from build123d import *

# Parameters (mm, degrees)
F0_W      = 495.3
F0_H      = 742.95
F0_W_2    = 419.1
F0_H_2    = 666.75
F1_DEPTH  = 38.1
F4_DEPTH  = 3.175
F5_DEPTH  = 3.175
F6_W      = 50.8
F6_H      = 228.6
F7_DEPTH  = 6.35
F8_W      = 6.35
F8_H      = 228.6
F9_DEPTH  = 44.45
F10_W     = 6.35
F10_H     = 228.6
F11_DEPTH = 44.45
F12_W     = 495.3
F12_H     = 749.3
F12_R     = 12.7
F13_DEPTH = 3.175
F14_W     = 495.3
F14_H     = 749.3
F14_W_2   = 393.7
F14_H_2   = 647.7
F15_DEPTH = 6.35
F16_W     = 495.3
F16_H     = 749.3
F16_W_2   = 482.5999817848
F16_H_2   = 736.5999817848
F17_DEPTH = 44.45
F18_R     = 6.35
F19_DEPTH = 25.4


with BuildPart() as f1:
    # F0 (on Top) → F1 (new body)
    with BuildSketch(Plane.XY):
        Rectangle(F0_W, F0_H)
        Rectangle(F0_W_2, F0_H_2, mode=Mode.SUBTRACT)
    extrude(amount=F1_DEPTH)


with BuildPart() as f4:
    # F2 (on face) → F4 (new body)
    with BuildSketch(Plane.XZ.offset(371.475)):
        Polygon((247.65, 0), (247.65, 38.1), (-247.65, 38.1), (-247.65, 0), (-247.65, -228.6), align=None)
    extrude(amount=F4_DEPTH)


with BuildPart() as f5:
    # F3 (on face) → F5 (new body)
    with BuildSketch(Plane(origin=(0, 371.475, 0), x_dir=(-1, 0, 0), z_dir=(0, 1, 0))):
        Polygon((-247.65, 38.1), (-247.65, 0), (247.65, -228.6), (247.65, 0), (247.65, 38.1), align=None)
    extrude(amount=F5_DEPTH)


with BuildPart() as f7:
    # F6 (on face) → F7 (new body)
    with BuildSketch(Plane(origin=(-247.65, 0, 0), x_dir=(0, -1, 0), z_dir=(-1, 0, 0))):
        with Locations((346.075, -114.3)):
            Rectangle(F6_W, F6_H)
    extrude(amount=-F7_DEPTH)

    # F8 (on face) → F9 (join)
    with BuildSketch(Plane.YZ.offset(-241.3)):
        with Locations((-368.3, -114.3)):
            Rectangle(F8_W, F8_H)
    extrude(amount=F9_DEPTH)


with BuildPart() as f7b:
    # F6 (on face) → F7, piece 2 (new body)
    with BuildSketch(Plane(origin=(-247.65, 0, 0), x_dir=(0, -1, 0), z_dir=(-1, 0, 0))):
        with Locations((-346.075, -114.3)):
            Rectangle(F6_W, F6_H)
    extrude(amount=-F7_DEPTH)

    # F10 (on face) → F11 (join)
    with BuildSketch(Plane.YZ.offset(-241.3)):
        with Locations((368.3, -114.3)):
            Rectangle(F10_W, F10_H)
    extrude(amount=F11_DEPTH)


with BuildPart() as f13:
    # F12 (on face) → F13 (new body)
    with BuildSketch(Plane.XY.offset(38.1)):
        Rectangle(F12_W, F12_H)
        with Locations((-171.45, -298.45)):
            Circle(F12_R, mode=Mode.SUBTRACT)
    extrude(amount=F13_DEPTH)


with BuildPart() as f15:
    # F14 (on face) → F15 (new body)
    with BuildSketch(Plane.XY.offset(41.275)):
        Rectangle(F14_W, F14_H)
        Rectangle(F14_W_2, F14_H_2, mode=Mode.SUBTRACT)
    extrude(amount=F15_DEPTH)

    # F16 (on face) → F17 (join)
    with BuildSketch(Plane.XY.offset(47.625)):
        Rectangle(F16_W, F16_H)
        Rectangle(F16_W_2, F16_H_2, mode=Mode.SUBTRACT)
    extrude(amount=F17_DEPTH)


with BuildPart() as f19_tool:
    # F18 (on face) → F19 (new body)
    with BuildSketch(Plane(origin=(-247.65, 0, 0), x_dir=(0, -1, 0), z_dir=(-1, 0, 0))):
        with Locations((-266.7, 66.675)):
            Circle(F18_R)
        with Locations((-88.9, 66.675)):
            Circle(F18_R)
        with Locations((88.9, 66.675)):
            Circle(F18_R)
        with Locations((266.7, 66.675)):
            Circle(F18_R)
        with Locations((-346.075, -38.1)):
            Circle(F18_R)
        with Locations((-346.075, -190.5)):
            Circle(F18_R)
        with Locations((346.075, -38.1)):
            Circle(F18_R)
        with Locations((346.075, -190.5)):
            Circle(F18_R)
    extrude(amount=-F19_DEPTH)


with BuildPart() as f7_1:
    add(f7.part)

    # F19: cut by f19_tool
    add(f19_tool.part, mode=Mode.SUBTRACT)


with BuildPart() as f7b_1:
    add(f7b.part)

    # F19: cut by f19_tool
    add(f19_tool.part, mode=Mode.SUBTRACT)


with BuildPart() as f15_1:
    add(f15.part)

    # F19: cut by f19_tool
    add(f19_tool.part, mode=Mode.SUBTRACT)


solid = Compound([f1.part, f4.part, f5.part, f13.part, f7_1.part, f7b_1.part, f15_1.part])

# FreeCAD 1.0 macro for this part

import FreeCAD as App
import Part
import Sketcher
from FreeCAD import Vector
Q = App.Units.Quantity


def add_polygon(sketch, points):
    """Adds a closed chain of lines whose ends are joined by coincident constraints."""
    first, n = sketch.GeometryCount, len(points)
    for a, b in zip(points, points[1:] + points[:1]):
        sketch.addGeometry(Part.LineSegment(App.Vector(*a, 0), App.Vector(*b, 0)), False)
    for i in range(n):
        sketch.addConstraint(Sketcher.Constraint("Coincident", first + i, 2, first + (i + 1) % n, 1))

doc = App.newDocument("Part")
params = doc.addObject("Spreadsheet::Sheet", "Params")
for row, (alias, value) in enumerate([
    ("sketch1_width", "19.5 in"),
    ("sketch1_width2", "16.5 in"),
    ("sketch1_height", "29.25 in"),
    ("sketch1_height2", "26.25 in"),
    ("pad1_length", "1.5 in"),
    ("sketch2_width", "19.5 in"),
    ("sketch2_height", "1.5 in"),
    ("sketch2_height2", "10.5 in"),
    ("pad2_length", "0.125 in"),
    ("sketch3_width", "19.5 in"),
    ("sketch3_height", "1.5 in"),
    ("sketch3_height2", "10.5 in"),
    ("pad3_length", "0.125 in"),
    ("sketch4_width", "2 in"),
    ("sketch4_height", "9 in"),
    ("pad4_length", "0.25 in"),
    ("sketch5_height", "9 in"),
    ("sketch5_width", "0.25 in"),
    ("pad5_length", "1.75 in"),
    ("sketch6_width", "2 in"),
    ("sketch6_height", "9 in"),
    ("pad6_length", "0.25 in"),
    ("sketch7_height", "9 in"),
    ("sketch7_width", "0.25 in"),
    ("pad7_length", "1.75 in"),
    ("sketch8_diameter", "1 in"),
    ("sketch8_width", "19.5 in"),
    ("sketch8_height", "29.5 in"),
    ("pad8_length", "0.125 in"),
    ("sketch9_width", "19.5 in"),
    ("sketch9_width2", "15.5 in"),
    ("sketch9_height", "29.5 in"),
    ("sketch9_height2", "25.5 in"),
    ("pad9_length", "0.25 in"),
    ("sketch10_width", "19.5 in"),
    ("sketch10_height", "29.5 in"),
    ("pad10_length", "1.75 in"),
    ("sketch11_diameter", "0.5 in"),
    ("pad11_length", "1 in"),
], start=1):
    params.set(f"A{row}", alias)
    params.set(f"B{row}", "=" + value)
    params.setAlias(f"B{row}", alias)

body = doc.addObject("PartDesign::Body", "Body")

sketch1 = body.newObject("Sketcher::SketchObject", "Sketch")
sketch1.AttachmentSupport = (doc.getObject("XY_Plane"), [""])
sketch1.MapMode = "FlatFace"
add_polygon(sketch1, [(-248, 371), (-248, -371), (248, -371), (248, 371)])
add_polygon(sketch1, [(210, -333), (-210, -333), (-210, 333), (210, 333)])
sketch1.addConstraint([
    Sketcher.Constraint("Vertical", 0),
    Sketcher.Constraint("Horizontal", 1),
    Sketcher.Constraint("Vertical", 2),
    Sketcher.Constraint("Horizontal", 3),
    Sketcher.Constraint("Horizontal", 4),
    Sketcher.Constraint("Vertical", 5),
    Sketcher.Constraint("Horizontal", 6),
    Sketcher.Constraint("Vertical", 7),
    Sketcher.Constraint("Symmetric", 0, 2, 2, 2, -1, 1),
    Sketcher.Constraint("Symmetric", 4, 2, 6, 2, -1, 1),
    Sketcher.Constraint("DistanceX", 1, 1, 1, 2, Q("19.5 in")),
    Sketcher.Constraint("DistanceX", 4, 2, 4, 1, Q("16.5 in")),
    Sketcher.Constraint("DistanceY", 0, 2, 0, 1, Q("29.25 in")),
    Sketcher.Constraint("DistanceY", 5, 1, 5, 2, Q("26.25 in")),
])
sketch1.setExpression("Constraints[18]", "Params.sketch1_width")
sketch1.setExpression("Constraints[19]", "Params.sketch1_width2")
sketch1.setExpression("Constraints[20]", "Params.sketch1_height")
sketch1.setExpression("Constraints[21]", "Params.sketch1_height2")
pad1 = body.newObject("PartDesign::Pad", "Pad")
pad1.Profile = sketch1
pad1.setExpression("Length", "Params.pad1_length")
body2 = doc.addObject("PartDesign::Body", "Body001")

sketch2 = body2.newObject("Sketcher::SketchObject", "Sketch001")
sketch2.AttachmentSupport = (doc.getObject("XZ_Plane001"), [""])
sketch2.MapMode = "FlatFace"
sketch2.AttachmentOffset = App.Placement(Vector(0, 0, 14.625 * 25.4), App.Rotation())
add_polygon(sketch2, [(248, 0), (248, 38), (-248, 38), (-248, -229)])
sketch2.addConstraint([
    Sketcher.Constraint("Vertical", 0),
    Sketcher.Constraint("Horizontal", 1),
    Sketcher.Constraint("Vertical", 2),
    Sketcher.Constraint("PointOnObject", 3, 2, -1),
    Sketcher.Constraint("DistanceX", 1, 2, 1, 1, Q("19.5 in")),
    Sketcher.Constraint("DistanceY", 0, 1, 0, 2, Q("1.5 in")),
    Sketcher.Constraint("DistanceY", 2, 2, 2, 1, Q("10.5 in")),
    Sketcher.Constraint("DistanceX", -1, 1, 0, 2, Q("9.75 in")),
])
sketch2.setExpression("Constraints[8]", "Params.sketch2_width")
sketch2.setExpression("Constraints[9]", "Params.sketch2_height")
sketch2.setExpression("Constraints[10]", "Params.sketch2_height2")
pad2 = body2.newObject("PartDesign::Pad", "Pad001")
pad2.Profile = sketch2
pad2.setExpression("Length", "Params.pad2_length")
body3 = doc.addObject("PartDesign::Body", "Body002")

sketch3 = body3.newObject("Sketcher::SketchObject", "Sketch002")
sketch3.AttachmentSupport = (doc.getObject("XZ_Plane002"), [""])
sketch3.MapMode = "FlatFace"
sketch3.AttachmentOffset = App.Placement(Vector(0, 0, -14.625 * 25.4), App.Rotation())
add_polygon(sketch3, [(248, 38), (248, 0), (-248, -229), (-248, 38)])
sketch3.addConstraint([
    Sketcher.Constraint("Vertical", 0),
    Sketcher.Constraint("Vertical", 2),
    Sketcher.Constraint("Horizontal", 3),
    Sketcher.Constraint("PointOnObject", 0, 2, -1),
    Sketcher.Constraint("DistanceX", 3, 1, 3, 2, Q("19.5 in")),
    Sketcher.Constraint("DistanceY", 0, 2, 0, 1, Q("1.5 in")),
    Sketcher.Constraint("DistanceY", 2, 1, 2, 2, Q("10.5 in")),
    Sketcher.Constraint("DistanceX", -1, 1, 0, 2, Q("9.75 in")),
])
sketch3.setExpression("Constraints[8]", "Params.sketch3_width")
sketch3.setExpression("Constraints[9]", "Params.sketch3_height")
sketch3.setExpression("Constraints[10]", "Params.sketch3_height2")
pad3 = body3.newObject("PartDesign::Pad", "Pad002")
pad3.Profile = sketch3
pad3.setExpression("Length", "Params.pad3_length")
pad3.Reversed = True
body4 = doc.addObject("PartDesign::Body", "Body003")

sketch4 = body4.newObject("Sketcher::SketchObject", "Sketch003")
sketch4.AttachmentSupport = (doc.getObject("YZ_Plane003"), [""])
sketch4.MapMode = "FlatFace"
sketch4.AttachmentOffset = App.Placement(Vector(0, 0, -9.75 * 25.4), App.Rotation())
add_polygon(sketch4, [(-321, 0), (-321, -229), (-371, -229), (-371, 0)])
sketch4.addConstraint([
    Sketcher.Constraint("Vertical", 0),
    Sketcher.Constraint("Horizontal", 1),
    Sketcher.Constraint("Vertical", 2),
    Sketcher.Constraint("Horizontal", 3),
    Sketcher.Constraint("PointOnObject", 2, 2, -1),
    Sketcher.Constraint("DistanceX", 1, 2, 1, 1, Q("2 in")),
    Sketcher.Constraint("DistanceY", 0, 2, 0, 1, Q("9 in")),
    Sketcher.Constraint("DistanceX", 0, 2, -1, 1, Q("12.625 in")),
])
sketch4.setExpression("Constraints[9]", "Params.sketch4_width")
sketch4.setExpression("Constraints[10]", "Params.sketch4_height")
pad4 = body4.newObject("PartDesign::Pad", "Pad003")
pad4.Profile = sketch4
pad4.setExpression("Length", "Params.pad4_length")

sketch5 = body4.newObject("Sketcher::SketchObject", "Sketch004")
sketch5.AttachmentSupport = (doc.getObject("YZ_Plane003"), [""])
sketch5.MapMode = "FlatFace"
sketch5.AttachmentOffset = App.Placement(Vector(0, 0, -9.5 * 25.4), App.Rotation())
add_polygon(sketch5, [(-371, 0), (-371, -229), (-365, -229), (-365, 0)])
sketch5.addConstraint([
    Sketcher.Constraint("Vertical", 0),
    Sketcher.Constraint("Horizontal", 1),
    Sketcher.Constraint("Vertical", 2),
    Sketcher.Constraint("Horizontal", 3),
    Sketcher.Constraint("PointOnObject", 2, 2, -1),
    Sketcher.Constraint("DistanceY", 0, 2, 0, 1, Q("9 in")),
    Sketcher.Constraint("DistanceX", 1, 1, 1, 2, Q("0.25 in")),
    Sketcher.Constraint("DistanceX", 0, 2, -1, 1, Q("14.625 in")),
])
sketch5.setExpression("Constraints[9]", "Params.sketch5_height")
sketch5.setExpression("Constraints[10]", "Params.sketch5_width")
pad5 = body4.newObject("PartDesign::Pad", "Pad004")
pad5.Profile = sketch5
pad5.setExpression("Length", "Params.pad5_length")
body5 = doc.addObject("PartDesign::Body", "Body004")

sketch6 = body5.newObject("Sketcher::SketchObject", "Sketch005")
sketch6.AttachmentSupport = (doc.getObject("YZ_Plane004"), [""])
sketch6.MapMode = "FlatFace"
sketch6.AttachmentOffset = App.Placement(Vector(0, 0, -9.75 * 25.4), App.Rotation())
add_polygon(sketch6, [(371, 0), (371, -229), (321, -229), (321, 0)])
sketch6.addConstraint([
    Sketcher.Constraint("Vertical", 0),
    Sketcher.Constraint("Horizontal", 1),
    Sketcher.Constraint("Vertical", 2),
    Sketcher.Constraint("Horizontal", 3),
    Sketcher.Constraint("PointOnObject", 2, 2, -1),
    Sketcher.Constraint("DistanceX", 1, 2, 1, 1, Q("2 in")),
    Sketcher.Constraint("DistanceY", 0, 2, 0, 1, Q("9 in")),
    Sketcher.Constraint("DistanceX", -1, 1, 0, 2, Q("14.625 in")),
])
sketch6.setExpression("Constraints[9]", "Params.sketch6_width")
sketch6.setExpression("Constraints[10]", "Params.sketch6_height")
pad6 = body5.newObject("PartDesign::Pad", "Pad005")
pad6.Profile = sketch6
pad6.setExpression("Length", "Params.pad6_length")

sketch7 = body5.newObject("Sketcher::SketchObject", "Sketch006")
sketch7.AttachmentSupport = (doc.getObject("YZ_Plane004"), [""])
sketch7.MapMode = "FlatFace"
sketch7.AttachmentOffset = App.Placement(Vector(0, 0, -9.5 * 25.4), App.Rotation())
add_polygon(sketch7, [(365, 0), (365, -229), (371, -229), (371, 0)])
sketch7.addConstraint([
    Sketcher.Constraint("Vertical", 0),
    Sketcher.Constraint("Horizontal", 1),
    Sketcher.Constraint("Vertical", 2),
    Sketcher.Constraint("Horizontal", 3),
    Sketcher.Constraint("PointOnObject", 2, 2, -1),
    Sketcher.Constraint("DistanceY", 0, 2, 0, 1, Q("9 in")),
    Sketcher.Constraint("DistanceX", 1, 1, 1, 2, Q("0.25 in")),
    Sketcher.Constraint("DistanceX", -1, 1, 0, 2, Q("14.375 in")),
])
sketch7.setExpression("Constraints[9]", "Params.sketch7_height")
sketch7.setExpression("Constraints[10]", "Params.sketch7_width")
pad7 = body5.newObject("PartDesign::Pad", "Pad006")
pad7.Profile = sketch7
pad7.setExpression("Length", "Params.pad7_length")
body6 = doc.addObject("PartDesign::Body", "Body005")

sketch8 = body6.newObject("Sketcher::SketchObject", "Sketch007")
sketch8.AttachmentSupport = (doc.getObject("XY_Plane005"), [""])
sketch8.MapMode = "FlatFace"
sketch8.AttachmentOffset = App.Placement(Vector(0, 0, 1.5 * 25.4), App.Rotation())
add_polygon(sketch8, [(-248, 375), (-248, -375), (248, -375), (248, 375)])
sketch8.addGeometry(Part.Circle(Vector(-171, -298, 0), Vector(0, 0, 1), 13), False)
sketch8.addConstraint([
    Sketcher.Constraint("Vertical", 0),
    Sketcher.Constraint("Horizontal", 1),
    Sketcher.Constraint("Vertical", 2),
    Sketcher.Constraint("Horizontal", 3),
    Sketcher.Constraint("Symmetric", 0, 2, 2, 2, -1, 1),
    Sketcher.Constraint("Diameter", 4, Q("1 in")),
    Sketcher.Constraint("DistanceX", 1, 1, 1, 2, Q("19.5 in")),
    Sketcher.Constraint("DistanceY", 0, 2, 0, 1, Q("29.5 in")),
    Sketcher.Constraint("DistanceX", 0, 2, 4, 3, Q("3 in")),
    Sketcher.Constraint("DistanceY", 0, 2, 4, 3, Q("3 in")),
])
sketch8.setExpression("Constraints[9]", "Params.sketch8_diameter")
sketch8.setExpression("Constraints[10]", "Params.sketch8_width")
sketch8.setExpression("Constraints[11]", "Params.sketch8_height")
pad8 = body6.newObject("PartDesign::Pad", "Pad007")
pad8.Profile = sketch8
pad8.setExpression("Length", "Params.pad8_length")
body7 = doc.addObject("PartDesign::Body", "Body006")

sketch9 = body7.newObject("Sketcher::SketchObject", "Sketch008")
sketch9.AttachmentSupport = (doc.getObject("XY_Plane006"), [""])
sketch9.MapMode = "FlatFace"
sketch9.AttachmentOffset = App.Placement(Vector(0, 0, 1.625 * 25.4), App.Rotation())
add_polygon(sketch9, [(-248, 375), (-248, -375), (248, -375), (248, 375)])
add_polygon(sketch9, [(197, -324), (-197, -324), (-197, 324), (197, 324)])
sketch9.addConstraint([
    Sketcher.Constraint("Vertical", 0),
    Sketcher.Constraint("Horizontal", 1),
    Sketcher.Constraint("Vertical", 2),
    Sketcher.Constraint("Horizontal", 3),
    Sketcher.Constraint("Horizontal", 4),
    Sketcher.Constraint("Vertical", 5),
    Sketcher.Constraint("Horizontal", 6),
    Sketcher.Constraint("Vertical", 7),
    Sketcher.Constraint("Symmetric", 0, 2, 2, 2, -1, 1),
    Sketcher.Constraint("Symmetric", 4, 2, 6, 2, -1, 1),
    Sketcher.Constraint("DistanceX", 1, 1, 1, 2, Q("19.5 in")),
    Sketcher.Constraint("DistanceX", 4, 2, 4, 1, Q("15.5 in")),
    Sketcher.Constraint("DistanceY", 0, 2, 0, 1, Q("29.5 in")),
    Sketcher.Constraint("DistanceY", 5, 1, 5, 2, Q("25.5 in")),
])
sketch9.setExpression("Constraints[18]", "Params.sketch9_width")
sketch9.setExpression("Constraints[19]", "Params.sketch9_width2")
sketch9.setExpression("Constraints[20]", "Params.sketch9_height")
sketch9.setExpression("Constraints[21]", "Params.sketch9_height2")
pad9 = body7.newObject("PartDesign::Pad", "Pad008")
pad9.Profile = sketch9
pad9.setExpression("Length", "Params.pad9_length")

sketch10 = body7.newObject("Sketcher::SketchObject", "Sketch009")
sketch10.AttachmentSupport = (doc.getObject("XY_Plane006"), [""])
sketch10.MapMode = "FlatFace"
sketch10.AttachmentOffset = App.Placement(Vector(0, 0, 1.875 * 25.4), App.Rotation())
add_polygon(sketch10, [(-248, 375), (-248, -375), (248, -375), (248, 375)])
add_polygon(sketch10, [(241, -368), (-241, -368), (-241, 368), (241, 368)])
sketch10.addConstraint([
    Sketcher.Constraint("Vertical", 0),
    Sketcher.Constraint("Horizontal", 1),
    Sketcher.Constraint("Vertical", 2),
    Sketcher.Constraint("Horizontal", 3),
    Sketcher.Constraint("Horizontal", 4),
    Sketcher.Constraint("Vertical", 5),
    Sketcher.Constraint("Horizontal", 6),
    Sketcher.Constraint("Vertical", 7),
    Sketcher.Constraint("Symmetric", 0, 2, 2, 2, -1, 1),
    Sketcher.Constraint("Symmetric", 4, 2, 6, 2, -1, 1),
    Sketcher.Constraint("DistanceX", 1, 1, 1, 2, Q("19.5 in")),
    Sketcher.Constraint("DistanceY", 0, 2, 0, 1, Q("29.5 in")),
    Sketcher.Constraint("DistanceX", 4, 2, 4, 1, Q("482.599982 mm")),
    Sketcher.Constraint("DistanceY", 5, 1, 5, 2, Q("736.599982 mm")),
])
sketch10.setExpression("Constraints[18]", "Params.sketch10_width")
sketch10.setExpression("Constraints[19]", "Params.sketch10_height")
pad10 = body7.newObject("PartDesign::Pad", "Pad009")
pad10.Profile = sketch10
pad10.setExpression("Length", "Params.pad10_length")
body8 = doc.addObject("PartDesign::Body", "Body007")
body8.AllowCompound = True

sketch11 = body8.newObject("Sketcher::SketchObject", "Sketch010")
sketch11.AttachmentSupport = (doc.getObject("YZ_Plane007"), [""])
sketch11.MapMode = "FlatFace"
sketch11.AttachmentOffset = App.Placement(Vector(0, 0, -9.75 * 25.4), App.Rotation())
sketch11.addGeometry([
    Part.Circle(Vector(267, 67, 0), Vector(0, 0, 1), 6),
    Part.Circle(Vector(89, 67, 0), Vector(0, 0, 1), 6),
    Part.Circle(Vector(-89, 67, 0), Vector(0, 0, 1), 6),
    Part.Circle(Vector(-267, 67, 0), Vector(0, 0, 1), 6),
    Part.Circle(Vector(346, -38, 0), Vector(0, 0, 1), 6),
    Part.Circle(Vector(346, -190, 0), Vector(0, 0, 1), 6),
    Part.Circle(Vector(-346, -38, 0), Vector(0, 0, 1), 6),
    Part.Circle(Vector(-346, -190, 0), Vector(0, 0, 1), 6),
], False)
sketch11.addConstraint([
    Sketcher.Constraint("Equal", 0, 1),
    Sketcher.Constraint("Equal", 1, 2),
    Sketcher.Constraint("Equal", 2, 3),
    Sketcher.Constraint("Equal", 3, 4),
    Sketcher.Constraint("Equal", 4, 5),
    Sketcher.Constraint("Equal", 5, 6),
    Sketcher.Constraint("Equal", 6, 7),
    Sketcher.Constraint("Symmetric", 1, 3, 2, 3, -2),
    Sketcher.Constraint("Symmetric", 0, 3, 3, 3, -2),
    Sketcher.Constraint("Symmetric", 4, 3, 6, 3, -2),
    Sketcher.Constraint("Symmetric", 5, 3, 7, 3, -2),
    Sketcher.Constraint("Horizontal", 0, 3, 1, 3),
    Sketcher.Constraint("Vertical", 4, 3, 5, 3),
    Sketcher.Constraint("Diameter", 0, Q("0.5 in")),
    Sketcher.Constraint("DistanceX", 1, 3, 0, 3, Q("7 in")),
    Sketcher.Constraint("DistanceX", 2, 3, 1, 3, Q("7 in")),
    Sketcher.Constraint("DistanceY", 5, 3, 4, 3, Q("6 in")),
    Sketcher.Constraint("DistanceY", 4, 3, -1, 1, Q("1.5 in")),
    Sketcher.Constraint("DistanceX", 6, 3, 4, 3, Q("27.25 in")),
    Sketcher.Constraint("DistanceY", -1, 1, 0, 3, Q("2.625 in")),
])
sketch11.setExpression("Constraints[13]", "Params.sketch11_diameter")
pad11 = body8.newObject("PartDesign::Pad", "Pad010")
pad11.Profile = sketch11
pad11.setExpression("Length", "Params.pad11_length")
doc.recompute()

body9 = doc.addObject("PartDesign::Body", "Body008")
body9.BaseFeature = body8
boolean = body4.newObject("PartDesign::Boolean", "Boolean")
boolean.Type = "Cut"
boolean.addObjects([body9])
doc.recompute()

body10 = doc.addObject("PartDesign::Body", "Body009")
body10.BaseFeature = body8
boolean2 = body5.newObject("PartDesign::Boolean", "Boolean001")
boolean2.Type = "Cut"
boolean2.addObjects([body10])
doc.recompute()

boolean3 = body7.newObject("PartDesign::Boolean", "Boolean002")
boolean3.Type = "Cut"
boolean3.addObjects([body8])

doc.recompute()
